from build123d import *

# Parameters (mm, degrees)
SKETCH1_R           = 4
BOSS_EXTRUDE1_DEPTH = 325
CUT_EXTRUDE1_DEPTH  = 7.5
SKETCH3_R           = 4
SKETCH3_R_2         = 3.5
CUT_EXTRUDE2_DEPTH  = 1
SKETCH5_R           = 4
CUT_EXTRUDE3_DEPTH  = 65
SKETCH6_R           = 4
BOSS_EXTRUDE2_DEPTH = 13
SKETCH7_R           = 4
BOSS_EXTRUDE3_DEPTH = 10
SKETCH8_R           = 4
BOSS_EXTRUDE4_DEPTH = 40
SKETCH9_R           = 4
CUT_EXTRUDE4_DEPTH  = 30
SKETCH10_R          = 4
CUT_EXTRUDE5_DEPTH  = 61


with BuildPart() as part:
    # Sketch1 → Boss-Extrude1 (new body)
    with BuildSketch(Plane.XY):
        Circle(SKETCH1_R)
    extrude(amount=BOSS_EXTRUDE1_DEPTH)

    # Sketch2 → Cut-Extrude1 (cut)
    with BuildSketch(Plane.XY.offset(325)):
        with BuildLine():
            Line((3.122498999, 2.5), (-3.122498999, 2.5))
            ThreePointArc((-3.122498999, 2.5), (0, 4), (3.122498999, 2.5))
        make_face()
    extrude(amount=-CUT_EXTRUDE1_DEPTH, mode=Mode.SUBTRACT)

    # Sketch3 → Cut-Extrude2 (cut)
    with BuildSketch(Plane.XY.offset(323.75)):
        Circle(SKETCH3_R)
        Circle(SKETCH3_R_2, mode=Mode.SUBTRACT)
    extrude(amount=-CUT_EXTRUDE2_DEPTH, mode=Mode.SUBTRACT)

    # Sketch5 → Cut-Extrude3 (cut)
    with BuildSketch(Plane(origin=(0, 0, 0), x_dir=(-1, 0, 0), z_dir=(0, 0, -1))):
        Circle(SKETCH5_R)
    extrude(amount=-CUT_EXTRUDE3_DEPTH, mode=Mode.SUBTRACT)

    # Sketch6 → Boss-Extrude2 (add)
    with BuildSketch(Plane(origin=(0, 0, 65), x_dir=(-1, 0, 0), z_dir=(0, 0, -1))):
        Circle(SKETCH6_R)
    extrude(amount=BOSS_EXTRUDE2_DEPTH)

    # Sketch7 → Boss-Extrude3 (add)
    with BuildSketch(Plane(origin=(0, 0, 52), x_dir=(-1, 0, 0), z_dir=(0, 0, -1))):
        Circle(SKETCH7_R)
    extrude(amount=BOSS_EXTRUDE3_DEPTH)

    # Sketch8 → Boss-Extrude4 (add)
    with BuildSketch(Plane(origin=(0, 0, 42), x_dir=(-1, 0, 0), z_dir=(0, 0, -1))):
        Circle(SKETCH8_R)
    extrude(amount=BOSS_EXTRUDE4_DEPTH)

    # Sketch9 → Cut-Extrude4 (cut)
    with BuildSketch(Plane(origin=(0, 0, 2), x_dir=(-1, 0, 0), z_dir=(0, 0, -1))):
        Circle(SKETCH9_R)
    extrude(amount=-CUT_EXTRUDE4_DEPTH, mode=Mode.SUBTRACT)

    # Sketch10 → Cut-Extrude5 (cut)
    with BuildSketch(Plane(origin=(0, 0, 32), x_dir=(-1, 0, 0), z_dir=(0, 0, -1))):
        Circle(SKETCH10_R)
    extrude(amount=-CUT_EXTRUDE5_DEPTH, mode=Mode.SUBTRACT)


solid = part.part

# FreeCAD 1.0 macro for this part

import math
import FreeCAD as App
import Part
import Sketcher

doc = App.newDocument("Part")
body = doc.addObject("PartDesign::Body", "Body")

# Sketch on XY plane
sketch1 = body.newObject("Sketcher::SketchObject", "Sketch")
sketch1.AttachmentSupport = (doc.getObject("XY_Plane"), [""])
sketch1.MapMode = "FlatFace"
sketch1.addGeometry(Part.Circle(App.Vector(0, 0, 0), App.Vector(0, 0, 1), 4), False)
sketch1.addConstraint([
    Sketcher.Constraint("Coincident", 0, 3, -1, 1),
    Sketcher.Constraint("Diameter", 0, 8.0),
])
pad1 = body.newObject("PartDesign::Pad", "Pad")
pad1.Profile = sketch1
pad1.Length = 325

# Sketch on XY plane
sketch2 = body.newObject("Sketcher::SketchObject", "Sketch001")
sketch2.AttachmentSupport = (doc.getObject("XY_Plane"), [""])
sketch2.MapMode = "FlatFace"
sketch2.AttachmentOffset = App.Placement(App.Vector(0, 0, 325), App.Rotation())
sketch2.addGeometry([
    Part.LineSegment(App.Vector(-3.1, 2.5, 0), App.Vector(3.1, 2.5, 0)),
    Part.ArcOfCircle(Part.Circle(App.Vector(0, 0, 0), App.Vector(0, 0, 1), 4), math.radians(39), math.radians(141)),
], False)
sketch2.addConstraint([
    Sketcher.Constraint("Coincident", 0, 1, 1, 2),
    Sketcher.Constraint("Coincident", 1, 1, 0, 2),
    Sketcher.Constraint("Horizontal", 0),
    Sketcher.Constraint("Coincident", 1, 3, -1, 1),
    Sketcher.Constraint("Radius", 1, 4.0),
    Sketcher.Constraint("DistanceY", -1, 1, 0, 1, 2.5),
])
pocket1 = body.newObject("PartDesign::Pocket", "Pocket")
pocket1.Profile = sketch2
pocket1.Length = 7.5

# Sketch on XY plane
sketch3 = body.newObject("Sketcher::SketchObject", "Sketch002")
sketch3.AttachmentSupport = (doc.getObject("XY_Plane"), [""])
sketch3.MapMode = "FlatFace"
sketch3.AttachmentOffset = App.Placement(App.Vector(0, 0, 323.75), App.Rotation())
sketch3.addGeometry([
    Part.Circle(App.Vector(0, 0, 0), App.Vector(0, 0, 1), 4),
    Part.Circle(App.Vector(0, 0, 0), App.Vector(0, 0, 1), 3.5),
], False)
sketch3.addConstraint([
    Sketcher.Constraint("Coincident", 0, 3, -1, 1),
    Sketcher.Constraint("Coincident", 1, 3, -1, 1),
    Sketcher.Constraint("Diameter", 0, 8.0),
    Sketcher.Constraint("Diameter", 1, 7.0),
])
pocket2 = body.newObject("PartDesign::Pocket", "Pocket001")
pocket2.Profile = sketch3
pocket2.Length = 1

# Sketch on XY plane
sketch4 = body.newObject("Sketcher::SketchObject", "Sketch003")
sketch4.AttachmentSupport = (doc.getObject("XY_Plane"), [""])
sketch4.MapMode = "FlatFace"
sketch4.addGeometry(Part.Circle(App.Vector(0, 0, 0), App.Vector(0, 0, 1), 4), False)
sketch4.addConstraint([
    Sketcher.Constraint("Coincident", 0, 3, -1, 1),
    Sketcher.Constraint("Diameter", 0, 8.0),
])
pocket3 = body.newObject("PartDesign::Pocket", "Pocket002")
pocket3.Profile = sketch4
pocket3.Length = 65
pocket3.Reversed = True

# Sketch on XY plane
sketch5 = body.newObject("Sketcher::SketchObject", "Sketch004")
sketch5.AttachmentSupport = (doc.getObject("XY_Plane"), [""])
sketch5.MapMode = "FlatFace"
sketch5.AttachmentOffset = App.Placement(App.Vector(0, 0, 65), App.Rotation())
sketch5.addGeometry(Part.Circle(App.Vector(0, 0, 0), App.Vector(0, 0, 1), 4), False)
sketch5.addConstraint([
    Sketcher.Constraint("Coincident", 0, 3, -1, 1),
    Sketcher.Constraint("Diameter", 0, 8.0),
])
pad2 = body.newObject("PartDesign::Pad", "Pad001")
pad2.Profile = sketch5
pad2.Length = 13
pad2.Reversed = True

# Sketch on XY plane
sketch6 = body.newObject("Sketcher::SketchObject", "Sketch005")
sketch6.AttachmentSupport = (doc.getObject("XY_Plane"), [""])
sketch6.MapMode = "FlatFace"
sketch6.AttachmentOffset = App.Placement(App.Vector(0, 0, 52), App.Rotation())
sketch6.addGeometry(Part.Circle(App.Vector(0, 0, 0), App.Vector(0, 0, 1), 4), False)
sketch6.addConstraint([
    Sketcher.Constraint("Coincident", 0, 3, -1, 1),
    Sketcher.Constraint("Diameter", 0, 8.0),
])
pad3 = body.newObject("PartDesign::Pad", "Pad002")
pad3.Profile = sketch6
pad3.Length = 10
pad3.Reversed = True

# Sketch on XY plane
sketch7 = body.newObject("Sketcher::SketchObject", "Sketch006")
sketch7.AttachmentSupport = (doc.getObject("XY_Plane"), [""])
sketch7.MapMode = "FlatFace"
sketch7.AttachmentOffset = App.Placement(App.Vector(0, 0, 42), App.Rotation())
sketch7.addGeometry(Part.Circle(App.Vector(0, 0, 0), App.Vector(0, 0, 1), 4), False)
sketch7.addConstraint([
    Sketcher.Constraint("Coincident", 0, 3, -1, 1),
    Sketcher.Constraint("Diameter", 0, 8.0),
])
pad4 = body.newObject("PartDesign::Pad", "Pad003")
pad4.Profile = sketch7
pad4.Length = 40
pad4.Reversed = True

# Sketch on XY plane
sketch8 = body.newObject("Sketcher::SketchObject", "Sketch007")
sketch8.AttachmentSupport = (doc.getObject("XY_Plane"), [""])
sketch8.MapMode = "FlatFace"
sketch8.AttachmentOffset = App.Placement(App.Vector(0, 0, 2), App.Rotation())
sketch8.addGeometry(Part.Circle(App.Vector(0, 0, 0), App.Vector(0, 0, 1), 4), False)
sketch8.addConstraint([
    Sketcher.Constraint("Coincident", 0, 3, -1, 1),
    Sketcher.Constraint("Diameter", 0, 8.0),
])
pocket4 = body.newObject("PartDesign::Pocket", "Pocket003")
pocket4.Profile = sketch8
pocket4.Length = 30
pocket4.Reversed = True

# Sketch on XY plane
sketch9 = body.newObject("Sketcher::SketchObject", "Sketch008")
sketch9.AttachmentSupport = (doc.getObject("XY_Plane"), [""])
sketch9.MapMode = "FlatFace"
sketch9.AttachmentOffset = App.Placement(App.Vector(0, 0, 32), App.Rotation())
sketch9.addGeometry(Part.Circle(App.Vector(0, 0, 0), App.Vector(0, 0, 1), 4), False)
sketch9.addConstraint([
    Sketcher.Constraint("Coincident", 0, 3, -1, 1),
    Sketcher.Constraint("Diameter", 0, 8.0),
])
pocket5 = body.newObject("PartDesign::Pocket", "Pocket004")
pocket5.Profile = sketch9
pocket5.Length = 61
pocket5.Reversed = True

doc.recompute()
